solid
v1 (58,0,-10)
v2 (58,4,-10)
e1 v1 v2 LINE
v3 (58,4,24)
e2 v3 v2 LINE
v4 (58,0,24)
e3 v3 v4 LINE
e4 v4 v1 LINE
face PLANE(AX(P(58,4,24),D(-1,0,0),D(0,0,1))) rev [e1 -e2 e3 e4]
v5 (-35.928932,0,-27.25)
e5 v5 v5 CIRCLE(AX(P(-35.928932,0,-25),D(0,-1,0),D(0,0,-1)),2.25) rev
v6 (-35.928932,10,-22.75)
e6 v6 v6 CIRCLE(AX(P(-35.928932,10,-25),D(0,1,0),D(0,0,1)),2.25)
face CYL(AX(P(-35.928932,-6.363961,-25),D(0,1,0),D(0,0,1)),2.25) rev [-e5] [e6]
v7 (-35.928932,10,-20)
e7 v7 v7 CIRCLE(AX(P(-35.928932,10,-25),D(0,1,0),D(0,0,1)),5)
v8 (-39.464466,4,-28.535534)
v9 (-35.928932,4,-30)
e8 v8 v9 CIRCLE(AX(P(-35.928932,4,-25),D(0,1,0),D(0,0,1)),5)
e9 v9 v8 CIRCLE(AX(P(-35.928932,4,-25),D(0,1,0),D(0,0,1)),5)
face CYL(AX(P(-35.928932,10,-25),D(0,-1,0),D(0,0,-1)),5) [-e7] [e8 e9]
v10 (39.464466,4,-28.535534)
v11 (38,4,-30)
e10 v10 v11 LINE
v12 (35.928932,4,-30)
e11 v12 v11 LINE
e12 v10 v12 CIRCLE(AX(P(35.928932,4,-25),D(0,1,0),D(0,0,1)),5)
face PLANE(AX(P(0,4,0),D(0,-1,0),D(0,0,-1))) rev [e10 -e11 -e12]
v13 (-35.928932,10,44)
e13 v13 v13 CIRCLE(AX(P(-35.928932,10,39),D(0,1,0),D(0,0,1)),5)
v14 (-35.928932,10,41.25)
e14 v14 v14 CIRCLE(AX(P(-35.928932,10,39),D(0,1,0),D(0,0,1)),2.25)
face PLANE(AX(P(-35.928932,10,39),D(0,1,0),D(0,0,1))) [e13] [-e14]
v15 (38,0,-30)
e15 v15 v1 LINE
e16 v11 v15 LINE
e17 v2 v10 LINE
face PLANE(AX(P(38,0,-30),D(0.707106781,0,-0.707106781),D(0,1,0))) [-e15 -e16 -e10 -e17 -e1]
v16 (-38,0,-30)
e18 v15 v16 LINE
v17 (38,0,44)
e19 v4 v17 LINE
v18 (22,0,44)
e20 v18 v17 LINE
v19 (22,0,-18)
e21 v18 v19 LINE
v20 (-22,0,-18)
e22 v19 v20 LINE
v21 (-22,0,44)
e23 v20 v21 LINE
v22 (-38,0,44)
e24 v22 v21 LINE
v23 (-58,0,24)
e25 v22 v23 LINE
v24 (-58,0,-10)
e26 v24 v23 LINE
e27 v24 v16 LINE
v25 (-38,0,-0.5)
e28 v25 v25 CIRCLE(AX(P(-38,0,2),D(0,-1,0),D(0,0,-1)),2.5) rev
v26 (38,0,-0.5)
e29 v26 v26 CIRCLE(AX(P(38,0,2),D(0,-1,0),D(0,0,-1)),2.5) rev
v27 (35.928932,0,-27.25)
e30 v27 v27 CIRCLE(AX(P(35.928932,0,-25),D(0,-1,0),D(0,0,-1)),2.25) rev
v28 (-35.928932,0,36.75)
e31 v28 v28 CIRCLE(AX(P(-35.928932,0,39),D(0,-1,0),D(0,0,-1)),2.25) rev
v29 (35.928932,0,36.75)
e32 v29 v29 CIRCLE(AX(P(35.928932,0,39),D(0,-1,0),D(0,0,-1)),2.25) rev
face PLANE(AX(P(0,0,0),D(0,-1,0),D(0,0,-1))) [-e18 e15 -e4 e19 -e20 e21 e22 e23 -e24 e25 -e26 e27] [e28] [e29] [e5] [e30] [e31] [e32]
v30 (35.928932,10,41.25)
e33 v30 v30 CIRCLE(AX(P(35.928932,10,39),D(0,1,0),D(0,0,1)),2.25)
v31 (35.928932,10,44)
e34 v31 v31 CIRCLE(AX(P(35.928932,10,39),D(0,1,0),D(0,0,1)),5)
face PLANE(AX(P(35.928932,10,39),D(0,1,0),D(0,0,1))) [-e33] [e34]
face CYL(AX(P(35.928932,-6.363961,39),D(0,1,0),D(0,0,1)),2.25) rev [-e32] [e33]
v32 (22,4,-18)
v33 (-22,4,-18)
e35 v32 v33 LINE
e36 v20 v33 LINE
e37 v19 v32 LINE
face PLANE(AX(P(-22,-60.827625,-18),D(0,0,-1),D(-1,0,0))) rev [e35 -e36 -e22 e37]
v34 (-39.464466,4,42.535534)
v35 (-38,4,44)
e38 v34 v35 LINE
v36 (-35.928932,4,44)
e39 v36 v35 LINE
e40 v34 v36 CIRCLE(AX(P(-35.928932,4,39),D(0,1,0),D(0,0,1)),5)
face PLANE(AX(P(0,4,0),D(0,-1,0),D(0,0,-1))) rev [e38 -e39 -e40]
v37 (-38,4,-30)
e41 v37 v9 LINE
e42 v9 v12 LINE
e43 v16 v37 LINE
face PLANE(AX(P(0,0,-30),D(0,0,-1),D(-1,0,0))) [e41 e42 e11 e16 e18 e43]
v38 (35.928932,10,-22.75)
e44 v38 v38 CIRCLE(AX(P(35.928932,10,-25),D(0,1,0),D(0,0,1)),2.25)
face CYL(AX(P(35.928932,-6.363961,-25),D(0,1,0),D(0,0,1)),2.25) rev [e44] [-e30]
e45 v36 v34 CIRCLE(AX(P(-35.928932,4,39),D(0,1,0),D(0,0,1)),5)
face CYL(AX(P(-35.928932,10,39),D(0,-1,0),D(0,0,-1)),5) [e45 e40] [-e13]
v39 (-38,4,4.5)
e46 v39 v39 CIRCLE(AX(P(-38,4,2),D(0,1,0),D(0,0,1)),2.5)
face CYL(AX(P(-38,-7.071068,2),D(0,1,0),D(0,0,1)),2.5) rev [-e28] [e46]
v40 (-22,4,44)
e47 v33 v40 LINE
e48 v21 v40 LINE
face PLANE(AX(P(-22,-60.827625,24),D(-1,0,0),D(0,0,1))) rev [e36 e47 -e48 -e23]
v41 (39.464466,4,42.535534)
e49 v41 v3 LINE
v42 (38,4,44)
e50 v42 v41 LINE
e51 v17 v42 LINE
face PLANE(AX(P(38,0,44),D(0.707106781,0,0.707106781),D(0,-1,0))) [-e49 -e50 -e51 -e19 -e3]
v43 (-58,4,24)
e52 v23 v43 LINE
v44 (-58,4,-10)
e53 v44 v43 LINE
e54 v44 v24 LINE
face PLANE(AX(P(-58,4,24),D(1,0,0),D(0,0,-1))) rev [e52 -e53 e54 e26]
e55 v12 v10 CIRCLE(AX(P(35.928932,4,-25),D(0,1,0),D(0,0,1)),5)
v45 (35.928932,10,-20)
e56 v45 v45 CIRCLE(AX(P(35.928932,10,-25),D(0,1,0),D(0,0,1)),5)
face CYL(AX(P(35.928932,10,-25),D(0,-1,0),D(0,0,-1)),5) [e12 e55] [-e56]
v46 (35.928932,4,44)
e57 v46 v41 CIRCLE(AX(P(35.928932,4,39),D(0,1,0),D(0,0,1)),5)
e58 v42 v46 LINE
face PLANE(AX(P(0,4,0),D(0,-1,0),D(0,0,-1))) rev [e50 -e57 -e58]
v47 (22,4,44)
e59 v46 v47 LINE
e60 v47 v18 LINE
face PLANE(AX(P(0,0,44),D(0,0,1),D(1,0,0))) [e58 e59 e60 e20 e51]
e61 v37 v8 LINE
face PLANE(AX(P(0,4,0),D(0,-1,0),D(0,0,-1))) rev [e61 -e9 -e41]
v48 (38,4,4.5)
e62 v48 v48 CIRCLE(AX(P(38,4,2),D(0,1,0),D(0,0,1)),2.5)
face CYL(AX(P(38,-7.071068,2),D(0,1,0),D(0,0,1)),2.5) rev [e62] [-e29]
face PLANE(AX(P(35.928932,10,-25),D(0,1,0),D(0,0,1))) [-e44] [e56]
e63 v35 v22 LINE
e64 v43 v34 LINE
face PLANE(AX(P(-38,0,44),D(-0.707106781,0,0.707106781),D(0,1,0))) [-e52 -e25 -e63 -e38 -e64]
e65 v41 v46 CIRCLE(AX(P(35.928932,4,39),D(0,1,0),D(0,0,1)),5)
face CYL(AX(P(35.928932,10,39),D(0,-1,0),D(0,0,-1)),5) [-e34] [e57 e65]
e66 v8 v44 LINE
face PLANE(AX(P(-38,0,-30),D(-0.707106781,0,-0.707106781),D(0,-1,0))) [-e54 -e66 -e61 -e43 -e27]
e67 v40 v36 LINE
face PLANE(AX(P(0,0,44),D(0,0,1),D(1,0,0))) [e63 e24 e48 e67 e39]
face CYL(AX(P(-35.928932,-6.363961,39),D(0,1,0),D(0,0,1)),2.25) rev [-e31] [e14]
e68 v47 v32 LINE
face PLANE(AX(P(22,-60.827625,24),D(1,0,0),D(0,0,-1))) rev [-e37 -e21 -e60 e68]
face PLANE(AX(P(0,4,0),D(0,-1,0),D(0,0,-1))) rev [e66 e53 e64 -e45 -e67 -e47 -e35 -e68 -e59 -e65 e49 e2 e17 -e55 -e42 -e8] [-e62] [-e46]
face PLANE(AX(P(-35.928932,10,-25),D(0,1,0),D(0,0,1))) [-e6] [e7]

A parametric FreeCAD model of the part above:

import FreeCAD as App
import Part
import Sketcher

V = App.Vector
Q = App.Units.Quantity


def edges_at(feature, points):
    """Names of the edges that pass closest to the given points."""
    edges = feature.Shape.Edges
    near = lambda p: min(range(len(edges)), key=lambda i: edges[i].distToShape(Part.Vertex(*p))[0])
    return sorted({f"Edge{near(p) + 1}" for p in points})


def add_polygon(sketch, points):
    """Adds a closed chain of lines whose ends are joined by coincident constraints."""
    first, n = sketch.GeometryCount, len(points)
    for a, b in zip(points, points[1:] + points[:1]):
        sketch.addGeometry(Part.LineSegment(App.Vector(*a, 0), App.Vector(*b, 0)), False)
    for i in range(n):
        sketch.addConstraint(Sketcher.Constraint("Coincident", first + i, 2, first + (i + 1) % n, 1))

doc = App.newDocument("Part")
params = doc.addObject("Spreadsheet::Sheet", "Params")
for row, (alias, value) in enumerate([
    ("sketch1_width", "116 mm"),
    ("sketch1_height", "48 mm"),
    ("pad1_length", "4 mm"),
    ("sketch2_diameter", "5 mm"),
    ("pocket1_length", "4 mm"),
    ("sketch3_width", "44 mm"),
    ("sketch3_height", "42 mm"),
    ("pocket2_length", "4 mm"),
    ("sketch4_width", "36 mm"),
    ("sketch4_height", "4 mm"),
    ("pad2_length", "20 mm"),
    ("sketch5_width", "116 mm"),
    ("sketch5_height", "4 mm"),
    ("pad3_length", "6 mm"),
    ("chamfer_size", "20 mm"),
    ("sketch6_diameter", "10 mm"),
    ("pad4_length", "6 mm"),
    ("sketch7_diameter", "4.5 mm"),
    ("pocket3_length", "10 mm"),
], start=1):
    params.set(f"A{row}", alias)
    params.set(f"B{row}", "=" + value)
    params.setAlias(f"B{row}", alias)

body = doc.addObject("PartDesign::Body", "Body")

sketch1 = body.newObject("Sketcher::SketchObject", "Sketch")
sketch1.AttachmentSupport = (doc.getObject("XZ_Plane"), [""])
sketch1.MapMode = "FlatFace"
add_polygon(sketch1, [(-58, -24), (-58, 24), (58, 24), (58, -24)])
sketch1.addConstraint([
    Sketcher.Constraint("Vertical", 0),
    Sketcher.Constraint("Horizontal", 1),
    Sketcher.Constraint("Vertical", 2),
    Sketcher.Constraint("Horizontal", 3),
    Sketcher.Constraint("Symmetric", 0, 2, 2, 2, -1, 1),
    Sketcher.Constraint("DistanceX", 1, 1, 1, 2, Q("116 mm")),
    Sketcher.Constraint("DistanceY", 0, 1, 0, 2, Q("48 mm")),
])
sketch1.setExpression("Constraints[9]", "Params.sketch1_width")
sketch1.setExpression("Constraints[10]", "Params.sketch1_height")
pad1 = body.newObject("PartDesign::Pad", "Pad")
pad1.Profile = sketch1
pad1.setExpression("Length", "Params.pad1_length")
pad1.Reversed = True

sketch2 = body.newObject("Sketcher::SketchObject", "Sketch001")
sketch2.AttachmentSupport = (doc.getObject("XZ_Plane"), [""])
sketch2.MapMode = "FlatFace"
sketch2.AttachmentOffset = App.Placement(V(0, 0, -4), App.Rotation())
sketch2.addGeometry([
    Part.Circle(V(-38, 2, 0), V(0, 0, 1), 2.5),
    Part.Circle(V(38, 2, 0), V(0, 0, 1), 2.5),
], False)
sketch2.addConstraint([
    Sketcher.Constraint("Equal", 0, 1),
    Sketcher.Constraint("Symmetric", 0, 3, 1, 3, -2),
    Sketcher.Constraint("Diameter", 0, Q("5 mm")),
    Sketcher.Constraint("DistanceX", 0, 3, -1, 1, Q("38 mm")),
    Sketcher.Constraint("DistanceY", -1, 1, 0, 3, Q("2 mm")),
])
sketch2.setExpression("Constraints[2]", "Params.sketch2_diameter")
pocket1 = body.newObject("PartDesign::Pocket", "Pocket")
pocket1.Profile = sketch2
pocket1.setExpression("Length", "Params.pocket1_length")
pocket1.Reversed = True

sketch3 = body.newObject("Sketcher::SketchObject", "Sketch002")
sketch3.AttachmentSupport = (doc.getObject("XZ_Plane"), [""])
sketch3.MapMode = "FlatFace"
sketch3.AttachmentOffset = App.Placement(V(0, 0, -4), App.Rotation())
add_polygon(sketch3, [(-22, -18), (-22, 24), (22, 24), (22, -18)])
sketch3.addConstraint([
    Sketcher.Constraint("Vertical", 0),
    Sketcher.Constraint("Horizontal", 1),
    Sketcher.Constraint("Vertical", 2),
    Sketcher.Constraint("Horizontal", 3),
    Sketcher.Constraint("DistanceX", 1, 1, 1, 2, Q("44 mm")),
    Sketcher.Constraint("DistanceY", 0, 1, 0, 2, Q("42 mm")),
    Sketcher.Constraint("DistanceX", 0, 2, -1, 1, Q("22 mm")),
    Sketcher.Constraint("DistanceY", -1, 1, 0, 2, Q("24 mm")),
])
sketch3.setExpression("Constraints[8]", "Params.sketch3_width")
sketch3.setExpression("Constraints[9]", "Params.sketch3_height")
pocket2 = body.newObject("PartDesign::Pocket", "Pocket001")
pocket2.Profile = sketch3
pocket2.setExpression("Length", "Params.pocket2_length")
pocket2.Reversed = True

sketch4 = body.newObject("Sketcher::SketchObject", "Sketch003")
sketch4.AttachmentSupport = (doc.getObject("XY_Plane"), [""])
sketch4.MapMode = "FlatFace"
sketch4.AttachmentOffset = App.Placement(V(0, 0, 24), App.Rotation())
add_polygon(sketch4, [(-58, 4), (-58, 0), (-22, 0), (-22, 4)])
add_polygon(sketch4, [(22, 4), (22, 0), (58, 0), (58, 4)])
sketch4.addConstraint([
    Sketcher.Constraint("Vertical", 0),
    Sketcher.Constraint("Horizontal", 1),
    Sketcher.Constraint("Vertical", 2),
    Sketcher.Constraint("Horizontal", 3),
    Sketcher.Constraint("Vertical", 4),
    Sketcher.Constraint("Horizontal", 5),
    Sketcher.Constraint("Vertical", 6),
    Sketcher.Constraint("Horizontal", 7),
    Sketcher.Constraint("Symmetric", 1, 2, 4, 2, -1, 1),
    Sketcher.Constraint("Symmetric", 0, 2, 5, 2, -2),
    Sketcher.Constraint("Horizontal", 3, 2, 6, 2),
    Sketcher.Constraint("DistanceX", 1, 1, 1, 2, Q("36 mm")),
    Sketcher.Constraint("DistanceY", 0, 2, 0, 1, Q("4 mm")),
    Sketcher.Constraint("DistanceX", 0, 2, -1, 1, Q("58 mm")),
])
sketch4.setExpression("Constraints[19]", "Params.sketch4_width")
sketch4.setExpression("Constraints[20]", "Params.sketch4_height")
pad2 = body.newObject("PartDesign::Pad", "Pad001")
pad2.Profile = sketch4
pad2.setExpression("Length", "Params.pad2_length")

sketch5 = body.newObject("Sketcher::SketchObject", "Sketch004")
sketch5.AttachmentSupport = (doc.getObject("XY_Plane"), [""])
sketch5.MapMode = "FlatFace"
sketch5.AttachmentOffset = App.Placement(V(0, 0, -24), App.Rotation())
add_polygon(sketch5, [(58, 4), (58, 0), (-58, 0), (-58, 4)])
sketch5.addConstraint([
    Sketcher.Constraint("Vertical", 0),
    Sketcher.Constraint("Horizontal", 1),
    Sketcher.Constraint("Vertical", 2),
    Sketcher.Constraint("Horizontal", 3),
    Sketcher.Constraint("Symmetric", 0, 2, 1, 2, -1, 1),
    Sketcher.Constraint("DistanceX", 1, 2, 1, 1, Q("116 mm")),
    Sketcher.Constraint("DistanceY", 0, 2, 0, 1, Q("4 mm")),
])
sketch5.setExpression("Constraints[9]", "Params.sketch5_width")
sketch5.setExpression("Constraints[10]", "Params.sketch5_height")
pad3 = body.newObject("PartDesign::Pad", "Pad002")
pad3.Profile = sketch5
pad3.setExpression("Length", "Params.pad3_length")
pad3.Reversed = True
doc.recompute()

chamfer = body.newObject("PartDesign::Chamfer", "Chamfer")
chamfer.Base = (pad3, edges_at(pad3, [
    (-58, 2, 44),
    (58, 2, 44),
    (58, 2, -30),
    (-58, 2, -30),
]))
chamfer.setExpression("Size", "Params.chamfer_size")

sketch6 = body.newObject("Sketcher::SketchObject", "Sketch005")
sketch6.AttachmentSupport = (doc.getObject("XZ_Plane"), [""])
sketch6.MapMode = "FlatFace"
sketch6.AttachmentOffset = App.Placement(V(0, 0, -4), App.Rotation())
sketch6.addGeometry([
    Part.Circle(V(-35.928932, -25, 0), V(0, 0, 1), 5),
    Part.Circle(V(35.928932, -25, 0), V(0, 0, 1), 5),
    Part.Circle(V(35.928932, 39, 0), V(0, 0, 1), 5),
    Part.Circle(V(-35.928932, 39, 0), V(0, 0, 1), 5),
], False)
sketch6.addConstraint([
    Sketcher.Constraint("Equal", 0, 1),
    Sketcher.Constraint("Equal", 1, 2),
    Sketcher.Constraint("Equal", 2, 3),
    Sketcher.Constraint("Symmetric", 0, 3, 1, 3, -2),
    Sketcher.Constraint("Symmetric", 2, 3, 3, 3, -2),
    Sketcher.Constraint("Vertical", 1, 3, 2, 3),
    Sketcher.Constraint("Diameter", 0, Q("10 mm")),
    Sketcher.Constraint("DistanceY", 0, 3, -1, 1, Q("25 mm")),
    Sketcher.Constraint("DistanceY", -1, 1, 2, 3, Q("39 mm")),
    Sketcher.Constraint("DistanceX", 0, 3, -1, 1, Q("35.928932 mm")),
])
sketch6.setExpression("Constraints[6]", "Params.sketch6_diameter")
pad4 = body.newObject("PartDesign::Pad", "Pad003")
pad4.Profile = sketch6
pad4.setExpression("Length", "Params.pad4_length")
pad4.Reversed = True

sketch7 = body.newObject("Sketcher::SketchObject", "Sketch006")
sketch7.AttachmentSupport = (doc.getObject("XZ_Plane"), [""])
sketch7.MapMode = "FlatFace"
sketch7.AttachmentOffset = App.Placement(V(0, 0, -10), App.Rotation())
sketch7.addGeometry([
    Part.Circle(V(-35.928932, -25, 0), V(0, 0, 1), 2.25),
    Part.Circle(V(35.928932, -25, 0), V(0, 0, 1), 2.25),
    Part.Circle(V(35.928932, 39, 0), V(0, 0, 1), 2.25),
    Part.Circle(V(-35.928932, 39, 0), V(0, 0, 1), 2.25),
], False)
sketch7.addConstraint([
    Sketcher.Constraint("Equal", 0, 1),
    Sketcher.Constraint("Equal", 1, 2),
    Sketcher.Constraint("Equal", 2, 3),
    Sketcher.Constraint("Symmetric", 0, 3, 1, 3, -2),
    Sketcher.Constraint("Symmetric", 2, 3, 3, 3, -2),
    Sketcher.Constraint("Vertical", 1, 3, 2, 3),
    Sketcher.Constraint("Diameter", 0, Q("4.5 mm")),
    Sketcher.Constraint("DistanceY", 0, 3, -1, 1, Q("25 mm")),
    Sketcher.Constraint("DistanceY", -1, 1, 2, 3, Q("39 mm")),
    Sketcher.Constraint("DistanceX", 0, 3, -1, 1, Q("35.928932 mm")),
])
sketch7.setExpression("Constraints[6]", "Params.sketch7_diameter")
pocket3 = body.newObject("PartDesign::Pocket", "Pocket002")
pocket3.Profile = sketch7
pocket3.setExpression("Length", "Params.pocket3_length")
pocket3.Reversed = True

doc.recompute()
